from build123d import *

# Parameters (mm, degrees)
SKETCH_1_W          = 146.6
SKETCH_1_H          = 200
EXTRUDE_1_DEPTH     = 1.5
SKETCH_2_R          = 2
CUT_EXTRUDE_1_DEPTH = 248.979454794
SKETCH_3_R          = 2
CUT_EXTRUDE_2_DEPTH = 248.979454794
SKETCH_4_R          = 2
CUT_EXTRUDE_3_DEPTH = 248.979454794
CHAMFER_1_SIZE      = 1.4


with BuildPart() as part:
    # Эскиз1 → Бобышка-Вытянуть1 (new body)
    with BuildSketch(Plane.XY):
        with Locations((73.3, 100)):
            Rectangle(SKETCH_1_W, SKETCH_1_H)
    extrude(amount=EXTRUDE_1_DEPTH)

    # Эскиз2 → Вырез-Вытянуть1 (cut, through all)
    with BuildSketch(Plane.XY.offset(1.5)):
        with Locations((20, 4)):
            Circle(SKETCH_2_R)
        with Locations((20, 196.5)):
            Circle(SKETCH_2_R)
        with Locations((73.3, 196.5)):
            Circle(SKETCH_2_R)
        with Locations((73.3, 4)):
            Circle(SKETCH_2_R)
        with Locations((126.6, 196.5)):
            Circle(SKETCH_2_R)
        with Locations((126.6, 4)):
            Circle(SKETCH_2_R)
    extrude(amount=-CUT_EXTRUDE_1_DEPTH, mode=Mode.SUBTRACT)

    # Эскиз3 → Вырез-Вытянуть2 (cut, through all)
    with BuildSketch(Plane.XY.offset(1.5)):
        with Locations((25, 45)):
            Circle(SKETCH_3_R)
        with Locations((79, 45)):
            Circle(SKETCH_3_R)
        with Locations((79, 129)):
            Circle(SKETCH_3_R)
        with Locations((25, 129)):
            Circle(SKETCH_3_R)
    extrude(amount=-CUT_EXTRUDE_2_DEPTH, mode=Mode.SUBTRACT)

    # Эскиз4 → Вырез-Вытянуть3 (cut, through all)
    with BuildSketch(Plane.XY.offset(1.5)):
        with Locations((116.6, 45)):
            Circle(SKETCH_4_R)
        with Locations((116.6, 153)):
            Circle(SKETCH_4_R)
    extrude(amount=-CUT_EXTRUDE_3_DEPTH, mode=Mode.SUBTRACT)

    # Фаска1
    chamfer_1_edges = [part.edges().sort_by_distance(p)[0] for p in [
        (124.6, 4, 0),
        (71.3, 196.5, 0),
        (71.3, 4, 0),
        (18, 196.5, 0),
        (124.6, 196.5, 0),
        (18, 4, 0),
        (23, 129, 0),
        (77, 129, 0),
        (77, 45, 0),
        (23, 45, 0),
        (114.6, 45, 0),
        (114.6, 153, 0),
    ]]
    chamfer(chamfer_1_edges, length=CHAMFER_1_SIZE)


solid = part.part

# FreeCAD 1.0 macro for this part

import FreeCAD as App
import Part
import Sketcher

V = App.Vector


def edges_at(feature, points):
    """Names of the edges that pass closest to the given points."""
    edges = feature.Shape.Edges
    near = lambda p: min(range(len(edges)), key=lambda i: edges[i].distToShape(Part.Vertex(*p))[0])
    return sorted({f"Edge{near(p) + 1}" for p in points})


def add_polygon(sketch, points):
    """Adds a closed chain of lines whose ends are joined by coincident constraints."""
    first, n = sketch.GeometryCount, len(points)
    for a, b in zip(points, points[1:] + points[:1]):
        sketch.addGeometry(Part.LineSegment(App.Vector(*a, 0), App.Vector(*b, 0)), False)
    for i in range(n):
        sketch.addConstraint(Sketcher.Constraint("Coincident", first + i, 2, first + (i + 1) % n, 1))

doc = App.newDocument("Part")
body = doc.addObject("PartDesign::Body", "Body")

# Sketch on XY plane
sketch1 = doc.addObject("Sketcher::SketchObject", "Sketch")
body.addObject(sketch1)
sketch1.AttachmentSupport = (doc.XY_Plane, [""])
sketch1.MapMode = "FlatFace"
add_polygon(sketch1, [(0, 200), (0, 0), (146.6, 0), (146.6, 200)])  # lines 0-3
sketch1.addConstraint(Sketcher.Constraint("Vertical", 0))
sketch1.addConstraint(Sketcher.Constraint("Horizontal", 1))
sketch1.addConstraint(Sketcher.Constraint("Vertical", 2))
sketch1.addConstraint(Sketcher.Constraint("Horizontal", 3))
sketch1.addConstraint(Sketcher.Constraint("Coincident", 0, 2, -1, 1))
sketch1.addConstraint(Sketcher.Constraint("DistanceY", 0, 2, 0, 1, 200.0))
sketch1.addConstraint(Sketcher.Constraint("DistanceX", 1, 1, 1, 2, 146.6))
pad1 = doc.addObject("PartDesign::Pad", "Pad")
body.addObject(pad1)
pad1.Profile = sketch1
pad1.Length = 1.5

# Sketch on XY plane
sketch2 = doc.addObject("Sketcher::SketchObject", "Sketch001")
body.addObject(sketch2)
sketch2.AttachmentSupport = (doc.XY_Plane, [""])
sketch2.MapMode = "FlatFace"
sketch2.AttachmentOffset = App.Placement(V(0, 0, 1.5), App.Rotation())
sketch2.addGeometry(Part.Circle(V(20, 4, 0), V(0, 0, 1), 2), False)
sketch2.addGeometry(Part.Circle(V(20, 196.5, 0), V(0, 0, 1), 2), False)
sketch2.addGeometry(Part.Circle(V(73.3, 196.5, 0), V(0, 0, 1), 2), False)
sketch2.addGeometry(Part.Circle(V(73.3, 4, 0), V(0, 0, 1), 2), False)
sketch2.addGeometry(Part.Circle(V(126.6, 196.5, 0), V(0, 0, 1), 2), False)
sketch2.addGeometry(Part.Circle(V(126.6, 4, 0), V(0, 0, 1), 2), False)
sketch2.addConstraint(Sketcher.Constraint("Equal", 0, 1))
sketch2.addConstraint(Sketcher.Constraint("Equal", 1, 2))
sketch2.addConstraint(Sketcher.Constraint("Equal", 2, 3))
sketch2.addConstraint(Sketcher.Constraint("Equal", 3, 4))
sketch2.addConstraint(Sketcher.Constraint("Equal", 4, 5))
sketch2.addConstraint(Sketcher.Constraint("Horizontal", 1, 3, 2, 3))
sketch2.addConstraint(Sketcher.Constraint("Horizontal", 0, 3, 3, 3))
sketch2.addConstraint(Sketcher.Constraint("Horizontal", 2, 3, 4, 3))
sketch2.addConstraint(Sketcher.Constraint("Horizontal", 3, 3, 5, 3))
sketch2.addConstraint(Sketcher.Constraint("Vertical", 0, 3, 1, 3))
sketch2.addConstraint(Sketcher.Constraint("Vertical", 2, 3, 3, 3))
sketch2.addConstraint(Sketcher.Constraint("Vertical", 4, 3, 5, 3))
sketch2.addConstraint(Sketcher.Constraint("Diameter", 0, 4.0))
sketch2.addConstraint(Sketcher.Constraint("DistanceX", -1, 1, 0, 3, 20.0))
sketch2.addConstraint(Sketcher.Constraint("DistanceY", -1, 1, 0, 3, 4.0))
sketch2.addConstraint(Sketcher.Constraint("DistanceY", -1, 1, 1, 3, 196.5))
sketch2.addConstraint(Sketcher.Constraint("DistanceX", -1, 1, 2, 3, 73.3))
sketch2.addConstraint(Sketcher.Constraint("DistanceX", -1, 1, 4, 3, 126.6))
pocket1 = doc.addObject("PartDesign::Pocket", "Pocket")
body.addObject(pocket1)
pocket1.Profile = sketch2
pocket1.Type = "ThroughAll"

# Sketch on XY plane
sketch3 = doc.addObject("Sketcher::SketchObject", "Sketch002")
body.addObject(sketch3)
sketch3.AttachmentSupport = (doc.XY_Plane, [""])
sketch3.MapMode = "FlatFace"
sketch3.AttachmentOffset = App.Placement(V(0, 0, 1.5), App.Rotation())
sketch3.addGeometry(Part.Circle(V(25, 45, 0), V(0, 0, 1), 2), False)
sketch3.addGeometry(Part.Circle(V(79, 45, 0), V(0, 0, 1), 2), False)
sketch3.addGeometry(Part.Circle(V(79, 129, 0), V(0, 0, 1), 2), False)
sketch3.addGeometry(Part.Circle(V(25, 129, 0), V(0, 0, 1), 2), False)
sketch3.addConstraint(Sketcher.Constraint("Equal", 0, 1))
sketch3.addConstraint(Sketcher.Constraint("Equal", 1, 2))
sketch3.addConstraint(Sketcher.Constraint("Equal", 2, 3))
sketch3.addConstraint(Sketcher.Constraint("Horizontal", 0, 3, 1, 3))
sketch3.addConstraint(Sketcher.Constraint("Horizontal", 2, 3, 3, 3))
sketch3.addConstraint(Sketcher.Constraint("Vertical", 1, 3, 2, 3))
sketch3.addConstraint(Sketcher.Constraint("Vertical", 0, 3, 3, 3))
sketch3.addConstraint(Sketcher.Constraint("Diameter", 0, 4.0))
sketch3.addConstraint(Sketcher.Constraint("DistanceX", -1, 1, 0, 3, 25.0))
sketch3.addConstraint(Sketcher.Constraint("DistanceY", -1, 1, 0, 3, 45.0))
sketch3.addConstraint(Sketcher.Constraint("DistanceX", -1, 1, 1, 3, 79.0))
sketch3.addConstraint(Sketcher.Constraint("DistanceY", -1, 1, 2, 3, 129.0))
pocket2 = doc.addObject("PartDesign::Pocket", "Pocket001")
body.addObject(pocket2)
pocket2.Profile = sketch3
pocket2.Type = "ThroughAll"

# Sketch on XY plane
sketch4 = doc.addObject("Sketcher::SketchObject", "Sketch003")
body.addObject(sketch4)
sketch4.AttachmentSupport = (doc.XY_Plane, [""])
sketch4.MapMode = "FlatFace"
sketch4.AttachmentOffset = App.Placement(V(0, 0, 1.5), App.Rotation())
sketch4.addGeometry(Part.Circle(V(116.6, 45, 0), V(0, 0, 1), 2), False)
sketch4.addGeometry(Part.Circle(V(116.6, 153, 0), V(0, 0, 1), 2), False)
sketch4.addConstraint(Sketcher.Constraint("Equal", 0, 1))
sketch4.addConstraint(Sketcher.Constraint("Vertical", 0, 3, 1, 3))
sketch4.addConstraint(Sketcher.Constraint("Diameter", 0, 4.0))
sketch4.addConstraint(Sketcher.Constraint("DistanceY", -1, 1, 0, 3, 45.0))
sketch4.addConstraint(Sketcher.Constraint("DistanceY", -1, 1, 1, 3, 153.0))
sketch4.addConstraint(Sketcher.Constraint("DistanceX", -1, 1, 0, 3, 116.6))
pocket3 = doc.addObject("PartDesign::Pocket", "Pocket002")
body.addObject(pocket3)
pocket3.Profile = sketch4
pocket3.Type = "ThroughAll"
doc.recompute()

chamfer = doc.addObject("PartDesign::Chamfer", "Chamfer")
body.addObject(chamfer)
chamfer.Base = (pocket3, edges_at(pocket3, [
    (124.6, 4, 0),
    (71.3, 196.5, 0),
    (71.3, 4, 0),
    (18, 196.5, 0),
    (124.6, 196.5, 0),
    (18, 4, 0),
    (23, 129, 0),
    (77, 129, 0),
    (77, 45, 0),
    (23, 45, 0),
    (114.6, 45, 0),
    (114.6, 153, 0),
]))
chamfer.Size = 1.4

doc.recompute()
